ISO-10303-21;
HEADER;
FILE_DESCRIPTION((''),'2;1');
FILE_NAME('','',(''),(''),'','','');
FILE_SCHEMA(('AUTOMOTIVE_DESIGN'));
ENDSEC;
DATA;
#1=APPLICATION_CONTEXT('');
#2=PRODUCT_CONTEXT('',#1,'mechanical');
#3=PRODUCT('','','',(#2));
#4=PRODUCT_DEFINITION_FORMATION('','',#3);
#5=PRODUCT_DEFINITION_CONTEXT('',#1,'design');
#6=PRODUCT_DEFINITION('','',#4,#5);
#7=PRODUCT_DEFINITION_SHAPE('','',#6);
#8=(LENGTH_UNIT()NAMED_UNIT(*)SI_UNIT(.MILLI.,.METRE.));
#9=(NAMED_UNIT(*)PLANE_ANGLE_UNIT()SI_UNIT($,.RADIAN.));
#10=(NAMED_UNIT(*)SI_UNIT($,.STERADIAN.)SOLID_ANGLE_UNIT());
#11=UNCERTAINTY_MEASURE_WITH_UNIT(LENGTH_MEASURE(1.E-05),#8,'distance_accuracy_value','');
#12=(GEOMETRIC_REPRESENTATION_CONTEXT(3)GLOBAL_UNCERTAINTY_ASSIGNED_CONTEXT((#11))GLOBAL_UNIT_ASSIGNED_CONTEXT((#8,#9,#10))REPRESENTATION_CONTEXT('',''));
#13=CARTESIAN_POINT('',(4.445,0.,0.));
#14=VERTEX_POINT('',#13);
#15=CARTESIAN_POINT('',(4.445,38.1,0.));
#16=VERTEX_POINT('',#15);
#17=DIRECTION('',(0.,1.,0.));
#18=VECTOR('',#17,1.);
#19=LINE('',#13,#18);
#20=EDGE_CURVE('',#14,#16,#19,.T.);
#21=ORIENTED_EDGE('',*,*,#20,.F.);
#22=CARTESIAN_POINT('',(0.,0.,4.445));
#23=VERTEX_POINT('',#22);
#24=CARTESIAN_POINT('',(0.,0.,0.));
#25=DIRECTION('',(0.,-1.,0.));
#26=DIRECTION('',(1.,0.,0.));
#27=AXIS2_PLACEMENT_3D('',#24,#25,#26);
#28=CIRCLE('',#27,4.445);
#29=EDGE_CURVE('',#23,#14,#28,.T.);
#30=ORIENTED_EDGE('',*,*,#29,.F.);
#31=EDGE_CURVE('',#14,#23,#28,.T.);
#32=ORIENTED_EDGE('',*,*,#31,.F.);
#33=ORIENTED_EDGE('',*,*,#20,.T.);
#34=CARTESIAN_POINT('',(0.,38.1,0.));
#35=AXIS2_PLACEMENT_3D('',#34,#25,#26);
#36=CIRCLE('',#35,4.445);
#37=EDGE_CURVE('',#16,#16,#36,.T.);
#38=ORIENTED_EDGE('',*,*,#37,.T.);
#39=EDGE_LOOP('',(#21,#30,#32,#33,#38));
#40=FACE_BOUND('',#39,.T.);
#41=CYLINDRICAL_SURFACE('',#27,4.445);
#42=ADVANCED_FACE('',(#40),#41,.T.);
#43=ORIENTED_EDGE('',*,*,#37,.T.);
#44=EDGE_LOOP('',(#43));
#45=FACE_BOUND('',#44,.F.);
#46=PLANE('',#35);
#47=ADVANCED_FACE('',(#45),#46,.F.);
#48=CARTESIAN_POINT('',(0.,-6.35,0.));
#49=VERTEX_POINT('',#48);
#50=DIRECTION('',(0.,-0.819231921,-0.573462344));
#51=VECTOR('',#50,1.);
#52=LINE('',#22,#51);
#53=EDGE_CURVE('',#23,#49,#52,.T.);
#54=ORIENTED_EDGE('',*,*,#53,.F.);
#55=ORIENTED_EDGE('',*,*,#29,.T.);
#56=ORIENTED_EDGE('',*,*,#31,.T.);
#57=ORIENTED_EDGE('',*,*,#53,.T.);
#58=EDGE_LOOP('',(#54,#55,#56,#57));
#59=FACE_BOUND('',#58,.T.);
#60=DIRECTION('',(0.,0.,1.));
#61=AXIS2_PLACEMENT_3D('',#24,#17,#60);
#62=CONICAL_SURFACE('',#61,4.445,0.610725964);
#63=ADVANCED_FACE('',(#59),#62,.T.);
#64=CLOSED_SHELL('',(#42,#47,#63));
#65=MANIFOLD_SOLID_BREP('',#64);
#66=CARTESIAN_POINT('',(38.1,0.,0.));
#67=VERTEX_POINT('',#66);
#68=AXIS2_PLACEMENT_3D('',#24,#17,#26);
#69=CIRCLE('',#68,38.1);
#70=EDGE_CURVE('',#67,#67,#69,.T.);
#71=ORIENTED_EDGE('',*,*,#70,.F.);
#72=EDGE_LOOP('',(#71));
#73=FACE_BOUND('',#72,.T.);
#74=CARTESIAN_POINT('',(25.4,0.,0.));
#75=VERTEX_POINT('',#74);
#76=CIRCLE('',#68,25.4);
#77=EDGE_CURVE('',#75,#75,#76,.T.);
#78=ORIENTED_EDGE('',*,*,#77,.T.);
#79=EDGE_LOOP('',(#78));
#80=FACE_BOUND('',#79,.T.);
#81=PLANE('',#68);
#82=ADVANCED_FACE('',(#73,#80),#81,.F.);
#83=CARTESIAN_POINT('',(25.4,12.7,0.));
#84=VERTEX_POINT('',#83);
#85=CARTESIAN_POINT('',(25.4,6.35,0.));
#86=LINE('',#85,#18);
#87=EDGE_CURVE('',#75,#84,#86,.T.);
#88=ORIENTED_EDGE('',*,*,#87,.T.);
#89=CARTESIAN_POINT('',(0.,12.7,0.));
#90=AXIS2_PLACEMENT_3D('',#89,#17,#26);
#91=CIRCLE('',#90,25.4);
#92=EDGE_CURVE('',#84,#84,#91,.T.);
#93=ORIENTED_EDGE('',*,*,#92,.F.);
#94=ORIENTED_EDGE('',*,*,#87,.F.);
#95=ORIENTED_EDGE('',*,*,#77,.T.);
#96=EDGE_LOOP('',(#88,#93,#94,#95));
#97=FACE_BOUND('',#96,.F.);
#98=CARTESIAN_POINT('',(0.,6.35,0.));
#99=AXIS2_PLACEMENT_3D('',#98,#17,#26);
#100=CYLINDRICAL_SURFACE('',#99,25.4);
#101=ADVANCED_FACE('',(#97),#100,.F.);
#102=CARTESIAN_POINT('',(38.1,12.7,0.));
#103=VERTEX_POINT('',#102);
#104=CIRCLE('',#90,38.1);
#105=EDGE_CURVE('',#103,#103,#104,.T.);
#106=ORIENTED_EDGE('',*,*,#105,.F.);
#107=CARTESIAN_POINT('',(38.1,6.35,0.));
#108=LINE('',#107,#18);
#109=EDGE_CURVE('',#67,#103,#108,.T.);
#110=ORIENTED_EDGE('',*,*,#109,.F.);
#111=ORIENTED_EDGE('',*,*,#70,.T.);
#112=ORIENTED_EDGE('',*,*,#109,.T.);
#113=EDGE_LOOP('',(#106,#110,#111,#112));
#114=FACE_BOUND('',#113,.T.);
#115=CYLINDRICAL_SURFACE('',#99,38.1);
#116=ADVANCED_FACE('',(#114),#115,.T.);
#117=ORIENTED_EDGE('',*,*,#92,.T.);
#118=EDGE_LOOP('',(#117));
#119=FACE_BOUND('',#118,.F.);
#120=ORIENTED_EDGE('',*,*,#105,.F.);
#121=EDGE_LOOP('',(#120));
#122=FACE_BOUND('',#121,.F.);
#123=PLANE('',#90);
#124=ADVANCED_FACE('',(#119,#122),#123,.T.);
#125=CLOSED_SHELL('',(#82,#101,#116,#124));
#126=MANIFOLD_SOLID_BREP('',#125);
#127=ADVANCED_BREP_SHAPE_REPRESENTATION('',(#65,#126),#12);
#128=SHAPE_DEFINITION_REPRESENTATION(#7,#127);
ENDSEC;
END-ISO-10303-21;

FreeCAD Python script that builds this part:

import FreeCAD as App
import Part
import Sketcher
from FreeCAD import Vector
Q = App.Units.Quantity

doc = App.newDocument("Part")
params = doc.addObject("Spreadsheet::Sheet", "Params")
for row, (alias, value) in enumerate([
    ("sketch1_width", "0.5 in"),
    ("revolution_angle", "360 deg"),
    ("sketch2_diameter", "0.35 in"),
    ("pad1_length", "1.5 in"),
    ("sketch3_width", "0.25 in"),
    ("sketch3_height", "0.175 in"),
    ("revolution2_angle", "360 deg"),
], start=1):
    params.set(f"A{row}", alias)
    params.set(f"B{row}", "=" + value)
    params.setAlias(f"B{row}", alias)

body = doc.addObject("PartDesign::Body", "Body")

sketch1 = body.newObject("Sketcher::SketchObject", "Sketch")
sketch1.AttachmentSupport = (doc.getObject("XY_Plane"), [""])
sketch1.MapMode = "FlatFace"
sketch1.addGeometry([
    Part.LineSegment(Vector(25.4, 12.7, 0), Vector(25.4, 0, 0)),
    Part.LineSegment(Vector(25.4, 0, 0), Vector(38.1, 0, 0)),
    Part.LineSegment(Vector(38.1, 0, 0), Vector(38.1, 12.7, 0)),
    Part.LineSegment(Vector(38.1, 12.7, 0), Vector(25.4, 12.7, 0)),
], False)
sketch1.addConstraint([
    Sketcher.Constraint("Coincident", 0, 2, 1, 1),
    Sketcher.Constraint("Coincident", 1, 2, 2, 1),
    Sketcher.Constraint("Coincident", 2, 2, 3, 1),
    Sketcher.Constraint("Coincident", 3, 2, 0, 1),
    Sketcher.Constraint("Vertical", 0),
    Sketcher.Constraint("Horizontal", 1),
    Sketcher.Constraint("Vertical", 2),
    Sketcher.Constraint("Horizontal", 3),
    Sketcher.Constraint("PointOnObject", 0, 2, -1),
    Sketcher.Constraint("Equal", 3, 0),
    Sketcher.Constraint("DistanceX", 1, 1, 1, 2, Q("0.5 in")),
    Sketcher.Constraint("DistanceX", -1, 1, 0, 2, Q("1 in")),
])
sketch1.setExpression("Constraints[10]", "Params.sketch1_width")
revolution = body.newObject("PartDesign::Revolution", "Revolution")
revolution.Profile = sketch1
revolution.ReferenceAxis = (sketch1, ["V_Axis"])
revolution.setExpression("Angle", "Params.revolution_angle")
body2 = doc.addObject("PartDesign::Body", "Body001")

sketch2 = body2.newObject("Sketcher::SketchObject", "Sketch001")
sketch2.AttachmentSupport = (doc.getObject("XZ_Plane001"), [""])
sketch2.MapMode = "FlatFace"
sketch2.addGeometry(Part.Circle(Vector(0, 0, 0), Vector(0, 0, 1), 4.445), False)
sketch2.addConstraint([
    Sketcher.Constraint("Coincident", 0, 3, -1, 1),
    Sketcher.Constraint("Diameter", 0, Q("0.35 in")),
])
sketch2.setExpression("Constraints[1]", "Params.sketch2_diameter")
pad1 = body2.newObject("PartDesign::Pad", "Pad")
pad1.Profile = sketch2
pad1.setExpression("Length", "Params.pad1_length")
pad1.Reversed = True

sketch3 = body2.newObject("Sketcher::SketchObject", "Sketch002")
sketch3.AttachmentSupport = (doc.getObject("YZ_Plane001"), [""])
sketch3.MapMode = "FlatFace"
sketch3.addGeometry([
    Part.LineSegment(Vector(-6.35, 0, 0), Vector(0, 0, 0)),
    Part.LineSegment(Vector(0, 0, 0), Vector(0, 4.445, 0)),
    Part.LineSegment(Vector(0, 4.445, 0), Vector(-6.35, 0, 0)),
], False)
sketch3.addConstraint([
    Sketcher.Constraint("Coincident", 0, 2, 1, 1),
    Sketcher.Constraint("Coincident", 1, 2, 2, 1),
    Sketcher.Constraint("Coincident", 2, 2, 0, 1),
    Sketcher.Constraint("Horizontal", 0),
    Sketcher.Constraint("Vertical", 1),
    Sketcher.Constraint("Coincident", 0, 2, -1, 1),
    Sketcher.Constraint("DistanceX", 0, 1, 0, 2, Q("0.25 in")),
    Sketcher.Constraint("DistanceY", 1, 1, 1, 2, Q("0.175 in")),
])
sketch3.setExpression("Constraints[6]", "Params.sketch3_width")
sketch3.setExpression("Constraints[7]", "Params.sketch3_height")
revolution2 = body2.newObject("PartDesign::Revolution", "Revolution001")
revolution2.Profile = sketch3
revolution2.ReferenceAxis = (sketch3, ["H_Axis"])
revolution2.setExpression("Angle", "Params.revolution2_angle")

doc.recompute()
